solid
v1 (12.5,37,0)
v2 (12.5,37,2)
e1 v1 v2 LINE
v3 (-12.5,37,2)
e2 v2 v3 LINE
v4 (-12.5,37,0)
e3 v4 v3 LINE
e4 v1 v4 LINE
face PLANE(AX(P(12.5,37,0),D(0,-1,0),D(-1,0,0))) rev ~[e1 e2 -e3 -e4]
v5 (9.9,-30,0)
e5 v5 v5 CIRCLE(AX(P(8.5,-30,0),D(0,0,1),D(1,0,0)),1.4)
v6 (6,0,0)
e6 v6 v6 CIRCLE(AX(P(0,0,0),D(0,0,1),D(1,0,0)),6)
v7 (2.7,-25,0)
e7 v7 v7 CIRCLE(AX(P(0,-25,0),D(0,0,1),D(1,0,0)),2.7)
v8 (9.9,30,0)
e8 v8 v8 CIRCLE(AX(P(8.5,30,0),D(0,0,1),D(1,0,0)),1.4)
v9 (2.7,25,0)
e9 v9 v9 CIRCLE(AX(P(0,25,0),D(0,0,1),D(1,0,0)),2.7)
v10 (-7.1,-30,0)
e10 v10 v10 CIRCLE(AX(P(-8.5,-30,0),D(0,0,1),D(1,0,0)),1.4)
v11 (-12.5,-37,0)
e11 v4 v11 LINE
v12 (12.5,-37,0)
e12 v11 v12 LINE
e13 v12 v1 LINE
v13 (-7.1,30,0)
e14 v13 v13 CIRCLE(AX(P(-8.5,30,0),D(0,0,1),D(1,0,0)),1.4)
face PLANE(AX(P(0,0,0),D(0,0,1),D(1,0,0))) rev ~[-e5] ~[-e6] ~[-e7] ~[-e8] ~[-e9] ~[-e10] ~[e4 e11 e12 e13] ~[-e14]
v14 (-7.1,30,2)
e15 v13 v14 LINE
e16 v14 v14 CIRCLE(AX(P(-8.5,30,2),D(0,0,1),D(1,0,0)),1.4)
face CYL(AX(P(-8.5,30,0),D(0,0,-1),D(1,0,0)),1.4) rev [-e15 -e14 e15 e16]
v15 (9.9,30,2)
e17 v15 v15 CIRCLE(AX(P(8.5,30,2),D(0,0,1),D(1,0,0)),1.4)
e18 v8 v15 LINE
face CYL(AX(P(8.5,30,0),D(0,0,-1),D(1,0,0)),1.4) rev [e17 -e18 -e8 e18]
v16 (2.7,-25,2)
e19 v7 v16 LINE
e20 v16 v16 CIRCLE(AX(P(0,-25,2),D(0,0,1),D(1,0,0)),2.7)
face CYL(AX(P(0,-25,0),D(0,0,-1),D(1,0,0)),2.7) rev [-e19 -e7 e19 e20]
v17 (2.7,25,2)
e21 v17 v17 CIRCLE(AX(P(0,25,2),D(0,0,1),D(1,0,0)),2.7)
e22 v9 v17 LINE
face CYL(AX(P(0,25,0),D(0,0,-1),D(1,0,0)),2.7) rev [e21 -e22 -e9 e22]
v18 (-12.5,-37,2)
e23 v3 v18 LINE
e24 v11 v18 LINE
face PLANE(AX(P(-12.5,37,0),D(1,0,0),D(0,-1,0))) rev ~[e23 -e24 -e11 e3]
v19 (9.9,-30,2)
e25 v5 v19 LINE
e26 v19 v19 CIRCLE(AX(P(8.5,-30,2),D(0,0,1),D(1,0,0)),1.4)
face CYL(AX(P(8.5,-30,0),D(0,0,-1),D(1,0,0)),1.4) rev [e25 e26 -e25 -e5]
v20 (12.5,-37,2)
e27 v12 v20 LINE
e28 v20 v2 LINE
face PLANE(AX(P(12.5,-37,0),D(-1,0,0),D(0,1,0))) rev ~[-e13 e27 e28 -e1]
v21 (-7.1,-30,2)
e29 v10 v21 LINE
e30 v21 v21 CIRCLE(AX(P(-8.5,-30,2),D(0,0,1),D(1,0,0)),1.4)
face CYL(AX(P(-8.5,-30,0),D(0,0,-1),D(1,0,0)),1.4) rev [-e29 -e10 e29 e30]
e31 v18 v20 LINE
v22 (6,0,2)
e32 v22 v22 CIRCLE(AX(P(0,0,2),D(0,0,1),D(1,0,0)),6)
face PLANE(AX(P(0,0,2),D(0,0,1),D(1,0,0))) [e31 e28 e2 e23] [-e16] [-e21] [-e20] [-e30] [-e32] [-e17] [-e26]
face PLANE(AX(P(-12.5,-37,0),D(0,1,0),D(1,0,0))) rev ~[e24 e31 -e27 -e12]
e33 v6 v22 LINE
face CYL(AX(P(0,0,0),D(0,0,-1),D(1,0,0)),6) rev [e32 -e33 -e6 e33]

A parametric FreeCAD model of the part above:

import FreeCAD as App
import Part
import Sketcher

V = App.Vector

doc = App.newDocument("Part")
body = doc.addObject("PartDesign::Body", "Body")

# Sketch on XY plane
sketch1 = doc.addObject("Sketcher::SketchObject", "Sketch")
body.addObject(sketch1)
sketch1.AttachmentSupport = (doc.XY_Plane, [""])
sketch1.MapMode = "FlatFace"
sketch1.addGeometry([
    Part.LineSegment(V(-12.5, -37, 0), V(12.5, -37, 0)),  # 0
    Part.LineSegment(V(12.5, -37, 0), V(12.5, 37, 0)),  # 1
    Part.LineSegment(V(12.5, 37, 0), V(-12.5, 37, 0)),  # 2
    Part.LineSegment(V(-12.5, 37, 0), V(-12.5, -37, 0)),  # 3
    Part.Circle(V(-8.5, -30, 0), V(0, 0, 1), 1.4),  # 4
    Part.Circle(V(0, -25, 0), V(0, 0, 1), 2.7),  # 5
    Part.Circle(V(8.5, -30, 0), V(0, 0, 1), 1.4),  # 6
    Part.Circle(V(-8.5, 30, 0), V(0, 0, 1), 1.4),  # 7
    Part.Circle(V(0, 25, 0), V(0, 0, 1), 2.7),  # 8
    Part.Circle(V(8.5, 30, 0), V(0, 0, 1), 1.4),  # 9
    Part.Circle(V(0, 0, 0), V(0, 0, 1), 6),  # 10
], False)
sketch1.addConstraint([
    Sketcher.Constraint("Coincident", 0, 2, 1, 1),
    Sketcher.Constraint("Coincident", 1, 2, 2, 1),
    Sketcher.Constraint("Coincident", 2, 2, 3, 1),
    Sketcher.Constraint("Coincident", 3, 2, 0, 1),
    Sketcher.Constraint("Horizontal", 0),
    Sketcher.Constraint("Vertical", 1),
    Sketcher.Constraint("Horizontal", 2),
    Sketcher.Constraint("Vertical", 3),
    Sketcher.Constraint("Coincident", 10, 3, -1, 1),
    Sketcher.Constraint("Equal", 4, 6),
    Sketcher.Constraint("Equal", 6, 7),
    Sketcher.Constraint("Equal", 5, 8),
    Sketcher.Constraint("Equal", 7, 9),
    Sketcher.Constraint("Symmetric", 6, 3, 7, 3, -1, 1),
    Sketcher.Constraint("Symmetric", 5, 3, 8, 3, -1, 1),
    Sketcher.Constraint("Symmetric", 4, 3, 9, 3, -1, 1),
    Sketcher.Constraint("Symmetric", 0, 2, 2, 2, -1, 1),
    Sketcher.Constraint("Symmetric", 4, 3, 6, 3, -2),
    Sketcher.Constraint("PointOnObject", 5, 3, -2),
    Sketcher.Constraint("Diameter", 10, 12.0),
    Sketcher.Constraint("DistanceY", 0, 2, 5, 3, 12.0),
    Sketcher.Constraint("Diameter", 4, 2.8),
    Sketcher.Constraint("Diameter", 5, 5.4),
    Sketcher.Constraint("DistanceX", 0, 1, 0, 2, 25.0),
    Sketcher.Constraint("DistanceY", 1, 1, 1, 2, 74.0),
    Sketcher.Constraint("DistanceY", 4, 3, -1, 1, 30.0),
    Sketcher.Constraint("DistanceX", 4, 3, 6, 3, 17.0),
])
pad1 = doc.addObject("PartDesign::Pad", "Pad")
body.addObject(pad1)
pad1.Profile = sketch1
pad1.Length = 2

doc.recompute()
